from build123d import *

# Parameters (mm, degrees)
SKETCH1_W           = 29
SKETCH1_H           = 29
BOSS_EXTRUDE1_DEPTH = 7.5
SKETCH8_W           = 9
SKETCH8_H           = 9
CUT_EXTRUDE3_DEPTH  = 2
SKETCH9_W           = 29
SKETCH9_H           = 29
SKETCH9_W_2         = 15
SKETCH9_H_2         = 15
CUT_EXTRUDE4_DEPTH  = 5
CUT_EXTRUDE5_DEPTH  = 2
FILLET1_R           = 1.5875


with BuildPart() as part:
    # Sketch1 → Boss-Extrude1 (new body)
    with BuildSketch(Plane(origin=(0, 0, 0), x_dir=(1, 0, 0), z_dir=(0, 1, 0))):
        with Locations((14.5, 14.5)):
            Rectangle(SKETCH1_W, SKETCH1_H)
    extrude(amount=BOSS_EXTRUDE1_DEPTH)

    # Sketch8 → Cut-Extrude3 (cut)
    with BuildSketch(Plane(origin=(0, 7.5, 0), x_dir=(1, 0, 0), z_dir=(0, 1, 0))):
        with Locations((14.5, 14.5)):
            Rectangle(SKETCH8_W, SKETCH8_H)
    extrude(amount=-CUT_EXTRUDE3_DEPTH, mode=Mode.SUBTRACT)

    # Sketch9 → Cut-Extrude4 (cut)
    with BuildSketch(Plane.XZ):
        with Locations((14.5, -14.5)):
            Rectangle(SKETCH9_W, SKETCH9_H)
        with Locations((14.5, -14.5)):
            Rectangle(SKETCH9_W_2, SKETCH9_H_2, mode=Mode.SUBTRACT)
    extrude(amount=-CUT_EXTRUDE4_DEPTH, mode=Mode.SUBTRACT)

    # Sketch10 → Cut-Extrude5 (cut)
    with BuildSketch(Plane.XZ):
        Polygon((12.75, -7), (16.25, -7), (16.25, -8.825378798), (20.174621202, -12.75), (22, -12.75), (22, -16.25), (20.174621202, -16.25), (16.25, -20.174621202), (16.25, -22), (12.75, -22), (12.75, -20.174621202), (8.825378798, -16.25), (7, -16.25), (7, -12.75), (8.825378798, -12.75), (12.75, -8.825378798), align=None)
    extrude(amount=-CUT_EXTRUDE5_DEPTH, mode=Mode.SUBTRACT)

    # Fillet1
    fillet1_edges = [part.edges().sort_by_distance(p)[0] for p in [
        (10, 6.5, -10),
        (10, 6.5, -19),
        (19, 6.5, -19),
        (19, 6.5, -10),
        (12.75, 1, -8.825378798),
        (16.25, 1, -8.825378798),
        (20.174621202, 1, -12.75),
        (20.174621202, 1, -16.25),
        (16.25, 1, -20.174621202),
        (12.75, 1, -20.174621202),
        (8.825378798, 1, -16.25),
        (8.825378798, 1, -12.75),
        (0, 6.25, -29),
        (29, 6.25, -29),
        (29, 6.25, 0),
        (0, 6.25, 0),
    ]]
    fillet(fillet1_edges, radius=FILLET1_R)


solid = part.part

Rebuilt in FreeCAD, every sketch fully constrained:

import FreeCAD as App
import Part
import Sketcher
from FreeCAD import Vector
Q = App.Units.Quantity


def edges_at(feature, points):
    """Names of the edges that pass closest to the given points."""
    edges = feature.Shape.Edges
    near = lambda p: min(range(len(edges)), key=lambda i: edges[i].distToShape(Part.Vertex(*p))[0])
    return sorted({f"Edge{near(p) + 1}" for p in points})

doc = App.newDocument("Part")
body = doc.addObject("PartDesign::Body", "Body")

sketch1 = doc.addObject("Sketcher::SketchObject", "Sketch")
body.addObject(sketch1)
sketch1.AttachmentSupport = (doc.XZ_Plane, [""])
sketch1.MapMode = "FlatFace"
sketch1.addGeometry([
    Part.LineSegment(Vector(0, -29, 0), Vector(0, 0, 0)),
    Part.LineSegment(Vector(0, 0, 0), Vector(29, 0, 0)),
    Part.LineSegment(Vector(29, 0, 0), Vector(29, -29, 0)),
    Part.LineSegment(Vector(29, -29, 0), Vector(0, -29, 0)),
], False)
sketch1.addConstraint([
    Sketcher.Constraint("Coincident", 0, 2, 1, 1),
    Sketcher.Constraint("Coincident", 1, 2, 2, 1),
    Sketcher.Constraint("Coincident", 2, 2, 3, 1),
    Sketcher.Constraint("Coincident", 3, 2, 0, 1),
    Sketcher.Constraint("Vertical", 0),
    Sketcher.Constraint("Horizontal", 1),
    Sketcher.Constraint("Vertical", 2),
    Sketcher.Constraint("Horizontal", 3),
    Sketcher.Constraint("Coincident", 0, 2, -1, 1),
    Sketcher.Constraint("Equal", 3, 0),
    Sketcher.Constraint("DistanceX", 1, 1, 1, 2, Q("29 mm")),
])
pad1 = doc.addObject("PartDesign::Pad", "Pad")
body.addObject(pad1)
pad1.Profile = sketch1
pad1.Length = 7.5
pad1.Reversed = True

sketch2 = doc.addObject("Sketcher::SketchObject", "Sketch001")
body.addObject(sketch2)
sketch2.AttachmentSupport = (doc.XZ_Plane, [""])
sketch2.MapMode = "FlatFace"
sketch2.AttachmentOffset = App.Placement(Vector(0, 0, -7.5), App.Rotation())
sketch2.addGeometry([
    Part.LineSegment(Vector(10, -19, 0), Vector(10, -10, 0)),
    Part.LineSegment(Vector(10, -10, 0), Vector(19, -10, 0)),
    Part.LineSegment(Vector(19, -10, 0), Vector(19, -19, 0)),
    Part.LineSegment(Vector(19, -19, 0), Vector(10, -19, 0)),
], False)
sketch2.addConstraint([
    Sketcher.Constraint("Coincident", 0, 2, 1, 1),
    Sketcher.Constraint("Coincident", 1, 2, 2, 1),
    Sketcher.Constraint("Coincident", 2, 2, 3, 1),
    Sketcher.Constraint("Coincident", 3, 2, 0, 1),
    Sketcher.Constraint("Vertical", 0),
    Sketcher.Constraint("Horizontal", 1),
    Sketcher.Constraint("Vertical", 2),
    Sketcher.Constraint("Horizontal", 3),
    Sketcher.Constraint("Equal", 3, 0),
    Sketcher.Constraint("DistanceX", 1, 1, 1, 2, Q("9 mm")),
    Sketcher.Constraint("DistanceX", -1, 1, 0, 2, Q("10 mm")),
    Sketcher.Constraint("DistanceY", 0, 2, -1, 1, Q("10 mm")),
])
pocket1 = doc.addObject("PartDesign::Pocket", "Pocket")
body.addObject(pocket1)
pocket1.Profile = sketch2
pocket1.Length = 2
pocket1.Reversed = True

sketch3 = doc.addObject("Sketcher::SketchObject", "Sketch002")
body.addObject(sketch3)
sketch3.AttachmentSupport = (doc.XZ_Plane, [""])
sketch3.MapMode = "FlatFace"
sketch3.addGeometry([
    Part.LineSegment(Vector(0, 0, 0), Vector(0, -29, 0)),
    Part.LineSegment(Vector(0, -29, 0), Vector(29, -29, 0)),
    Part.LineSegment(Vector(29, -29, 0), Vector(29, 0, 0)),
    Part.LineSegment(Vector(29, 0, 0), Vector(0, 0, 0)),
    Part.LineSegment(Vector(22, -22, 0), Vector(7, -22, 0)),
    Part.LineSegment(Vector(7, -22, 0), Vector(7, -7, 0)),
    Part.LineSegment(Vector(7, -7, 0), Vector(22, -7, 0)),
    Part.LineSegment(Vector(22, -7, 0), Vector(22, -22, 0)),
], False)
sketch3.addConstraint([
    Sketcher.Constraint("Coincident", 0, 2, 1, 1),
    Sketcher.Constraint("Coincident", 1, 2, 2, 1),
    Sketcher.Constraint("Coincident", 2, 2, 3, 1),
    Sketcher.Constraint("Coincident", 3, 2, 0, 1),
    Sketcher.Constraint("Coincident", 4, 2, 5, 1),
    Sketcher.Constraint("Coincident", 5, 2, 6, 1),
    Sketcher.Constraint("Coincident", 6, 2, 7, 1),
    Sketcher.Constraint("Coincident", 7, 2, 4, 1),
    Sketcher.Constraint("Vertical", 0),
    Sketcher.Constraint("Horizontal", 1),
    Sketcher.Constraint("Vertical", 2),
    Sketcher.Constraint("Horizontal", 3),
    Sketcher.Constraint("Horizontal", 4),
    Sketcher.Constraint("Vertical", 5),
    Sketcher.Constraint("Horizontal", 6),
    Sketcher.Constraint("Vertical", 7),
    Sketcher.Constraint("Coincident", 3, 2, -1, 1),
    Sketcher.Constraint("Equal", 3, 0),
    Sketcher.Constraint("Equal", 6, 5),
    Sketcher.Constraint("DistanceX", 1, 1, 1, 2, Q("29 mm")),
    Sketcher.Constraint("DistanceX", 4, 2, 4, 1, Q("15 mm")),
    Sketcher.Constraint("DistanceX", -1, 1, 4, 2, Q("7 mm")),
    Sketcher.Constraint("DistanceY", 4, 2, -1, 1, Q("22 mm")),
])
pocket2 = doc.addObject("PartDesign::Pocket", "Pocket001")
body.addObject(pocket2)
pocket2.Profile = sketch3
pocket2.Length = 5

sketch4 = doc.addObject("Sketcher::SketchObject", "Sketch003")
body.addObject(sketch4)
sketch4.AttachmentSupport = (doc.XZ_Plane, [""])
sketch4.MapMode = "FlatFace"
sketch4.addGeometry([
    Part.LineSegment(Vector(16.2, -7, 0), Vector(12.8, -7, 0)),
    Part.LineSegment(Vector(12.8, -7, 0), Vector(12.8, -8.8, 0)),
    Part.LineSegment(Vector(12.8, -8.8, 0), Vector(8.8, -12.8, 0)),
    Part.LineSegment(Vector(8.8, -12.8, 0), Vector(7, -12.8, 0)),
    Part.LineSegment(Vector(7, -12.8, 0), Vector(7, -16.2, 0)),
    Part.LineSegment(Vector(7, -16.2, 0), Vector(8.8, -16.2, 0)),
    Part.LineSegment(Vector(8.8, -16.2, 0), Vector(12.8, -20.2, 0)),
    Part.LineSegment(Vector(12.8, -20.2, 0), Vector(12.8, -22, 0)),
    Part.LineSegment(Vector(12.8, -22, 0), Vector(16.2, -22, 0)),
    Part.LineSegment(Vector(16.2, -22, 0), Vector(16.2, -20.2, 0)),
    Part.LineSegment(Vector(16.2, -20.2, 0), Vector(20.2, -16.2, 0)),
    Part.LineSegment(Vector(20.2, -16.2, 0), Vector(22, -16.2, 0)),
    Part.LineSegment(Vector(22, -16.2, 0), Vector(22, -12.8, 0)),
    Part.LineSegment(Vector(22, -12.8, 0), Vector(20.2, -12.8, 0)),
    Part.LineSegment(Vector(20.2, -12.8, 0), Vector(16.2, -8.8, 0)),
    Part.LineSegment(Vector(16.2, -8.8, 0), Vector(16.2, -7, 0)),
], False)
sketch4.addConstraint([
    Sketcher.Constraint("Coincident", 0, 2, 1, 1),
    Sketcher.Constraint("Coincident", 1, 2, 2, 1),
    Sketcher.Constraint("Coincident", 2, 2, 3, 1),
    Sketcher.Constraint("Coincident", 3, 2, 4, 1),
    Sketcher.Constraint("Coincident", 4, 2, 5, 1),
    Sketcher.Constraint("Coincident", 5, 2, 6, 1),
    Sketcher.Constraint("Coincident", 6, 2, 7, 1),
    Sketcher.Constraint("Coincident", 7, 2, 8, 1),
    Sketcher.Constraint("Coincident", 8, 2, 9, 1),
    Sketcher.Constraint("Coincident", 9, 2, 10, 1),
    Sketcher.Constraint("Coincident", 10, 2, 11, 1),
    Sketcher.Constraint("Coincident", 11, 2, 12, 1),
    Sketcher.Constraint("Coincident", 12, 2, 13, 1),
    Sketcher.Constraint("Coincident", 13, 2, 14, 1),
    Sketcher.Constraint("Coincident", 14, 2, 15, 1),
    Sketcher.Constraint("Coincident", 15, 2, 0, 1),
    Sketcher.Constraint("Horizontal", 0),
    Sketcher.Constraint("Vertical", 1),
    Sketcher.Constraint("Horizontal", 3),
    Sketcher.Constraint("Vertical", 4),
    Sketcher.Constraint("Horizontal", 5),
    Sketcher.Constraint("Vertical", 7),
    Sketcher.Constraint("Horizontal", 8),
    Sketcher.Constraint("Vertical", 9),
    Sketcher.Constraint("Horizontal", 11),
    Sketcher.Constraint("Vertical", 12),
    Sketcher.Constraint("Horizontal", 13),
    Sketcher.Constraint("Vertical", 15),
    Sketcher.Constraint("Perpendicular", 2, 6),
    Sketcher.Constraint("Perpendicular", 6, 10),
    Sketcher.Constraint("Perpendicular", 10, 14),
    Sketcher.Constraint("Horizontal", 6, 2, 9, 2),
    Sketcher.Constraint("Horizontal", 5, 2, 10, 2),
    Sketcher.Constraint("Horizontal", 3, 2, 12, 2),
    Sketcher.Constraint("Horizontal", 1, 2, 14, 2),
    Sketcher.Constraint("Vertical", 2, 2, 5, 2),
    Sketcher.Constraint("Vertical", 1, 2, 6, 2),
    Sketcher.Constraint("Vertical", 10, 2, 13, 2),
    Sketcher.Constraint("Vertical", 9, 2, 14, 2),
    Sketcher.Constraint("Equal", 5, 11),
    Sketcher.Constraint("Equal", 13, 1),
    Sketcher.Constraint("Equal", 8, 4),
    Sketcher.Constraint("Equal", 1, 7),
    Sketcher.Constraint("DistanceX", 0, 2, 0, 1, Q("3.5 mm")),
    Sketcher.Constraint("DistanceY", 0, 2, -1, 1, Q("7 mm")),
    Sketcher.Constraint("DistanceX", -1, 1, 3, 2, Q("7 mm")),
    Sketcher.Constraint("DistanceY", 7, 2, -1, 1, Q("22 mm")),
    Sketcher.Constraint("DistanceX", 3, 2, 3, 1, Q("1.825379 mm")),
])
pocket3 = doc.addObject("PartDesign::Pocket", "Pocket002")
body.addObject(pocket3)
pocket3.Profile = sketch4
pocket3.Length = 2
doc.recompute()

fillet = doc.addObject("PartDesign::Fillet", "Fillet")
body.addObject(fillet)
fillet.Base = (pocket3, edges_at(pocket3, [
    (10, 6.5, -10),
    (10, 6.5, -19),
    (19, 6.5, -19),
    (19, 6.5, -10),
    (12.75, 1, -8.825),
    (16.25, 1, -8.825),
    (20.175, 1, -12.75),
    (20.175, 1, -16.25),
    (16.25, 1, -20.175),
    (12.75, 1, -20.175),
    (8.825, 1, -16.25),
    (8.825, 1, -12.75),
    (0, 6.25, -29),
    (29, 6.25, -29),
    (29, 6.25, 0),
    (0, 6.25, 0),
]))
fillet.Radius = 1.5875

doc.recompute()
